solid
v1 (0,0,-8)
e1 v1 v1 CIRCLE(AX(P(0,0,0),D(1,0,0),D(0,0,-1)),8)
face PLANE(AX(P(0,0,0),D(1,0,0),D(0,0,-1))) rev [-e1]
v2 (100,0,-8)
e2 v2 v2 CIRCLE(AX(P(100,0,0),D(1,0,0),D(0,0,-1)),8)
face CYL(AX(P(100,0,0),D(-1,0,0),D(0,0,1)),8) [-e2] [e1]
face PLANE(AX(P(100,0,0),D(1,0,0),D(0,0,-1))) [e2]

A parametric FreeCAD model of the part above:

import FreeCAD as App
import Part
import Sketcher
Q = App.Units.Quantity

doc = App.newDocument("Part")
body = doc.addObject("PartDesign::Body", "Body")

# Sketch on YZ plane
sketch1 = doc.addObject("Sketcher::SketchObject", "Sketch")
body.addObject(sketch1)
sketch1.AttachmentSupport = (doc.YZ_Plane, [""])
sketch1.MapMode = "FlatFace"
sketch1.addGeometry(Part.Circle(App.Vector(0, 0, 0), App.Vector(0, 0, 1), 8), False)
sketch1.addConstraint(Sketcher.Constraint("Coincident", 0, 3, -1, 1))
sketch1.addConstraint(Sketcher.Constraint("Diameter", 0, Q("16 mm")))
pad1 = doc.addObject("PartDesign::Pad", "Pad")
body.addObject(pad1)
pad1.Profile = sketch1
pad1.Length = 100

doc.recompute()
